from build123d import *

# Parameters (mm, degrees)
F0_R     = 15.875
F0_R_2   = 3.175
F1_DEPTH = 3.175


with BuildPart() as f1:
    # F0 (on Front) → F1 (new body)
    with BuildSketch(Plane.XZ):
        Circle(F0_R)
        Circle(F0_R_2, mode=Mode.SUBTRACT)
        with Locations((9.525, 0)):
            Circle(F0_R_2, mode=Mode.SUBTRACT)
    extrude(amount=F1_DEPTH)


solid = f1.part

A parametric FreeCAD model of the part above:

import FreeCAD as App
import Part
import Sketcher
Q = App.Units.Quantity

doc = App.newDocument("Part")
body = doc.addObject("PartDesign::Body", "Body")

sketch1 = body.newObject("Sketcher::SketchObject", "Sketch")
sketch1.AttachmentSupport = (doc.getObject("XZ_Plane"), [""])
sketch1.MapMode = "FlatFace"
sketch1.addGeometry([
    Part.Circle(App.Vector(0, 0, 0), App.Vector(0, 0, 1), 15.875),
    Part.Circle(App.Vector(0, 0, 0), App.Vector(0, 0, 1), 3.175),
    Part.Circle(App.Vector(9.525, 0, 0), App.Vector(0, 0, 1), 3.175),
], False)
sketch1.addConstraint([
    Sketcher.Constraint("Coincident", 0, 3, -1, 1),
    Sketcher.Constraint("Coincident", 1, 3, -1, 1),
    Sketcher.Constraint("Equal", 1, 2),
    Sketcher.Constraint("PointOnObject", 2, 3, -1),
    Sketcher.Constraint("Diameter", 0, Q("1.25 in")),
    Sketcher.Constraint("Diameter", 1, Q("0.25 in")),
    Sketcher.Constraint("DistanceX", -1, 1, 2, 3, Q("0.375 in")),
])
pad1 = body.newObject("PartDesign::Pad", "Pad")
pad1.Profile = sketch1
pad1.Length = Q("0.125 in")

doc.recompute()
